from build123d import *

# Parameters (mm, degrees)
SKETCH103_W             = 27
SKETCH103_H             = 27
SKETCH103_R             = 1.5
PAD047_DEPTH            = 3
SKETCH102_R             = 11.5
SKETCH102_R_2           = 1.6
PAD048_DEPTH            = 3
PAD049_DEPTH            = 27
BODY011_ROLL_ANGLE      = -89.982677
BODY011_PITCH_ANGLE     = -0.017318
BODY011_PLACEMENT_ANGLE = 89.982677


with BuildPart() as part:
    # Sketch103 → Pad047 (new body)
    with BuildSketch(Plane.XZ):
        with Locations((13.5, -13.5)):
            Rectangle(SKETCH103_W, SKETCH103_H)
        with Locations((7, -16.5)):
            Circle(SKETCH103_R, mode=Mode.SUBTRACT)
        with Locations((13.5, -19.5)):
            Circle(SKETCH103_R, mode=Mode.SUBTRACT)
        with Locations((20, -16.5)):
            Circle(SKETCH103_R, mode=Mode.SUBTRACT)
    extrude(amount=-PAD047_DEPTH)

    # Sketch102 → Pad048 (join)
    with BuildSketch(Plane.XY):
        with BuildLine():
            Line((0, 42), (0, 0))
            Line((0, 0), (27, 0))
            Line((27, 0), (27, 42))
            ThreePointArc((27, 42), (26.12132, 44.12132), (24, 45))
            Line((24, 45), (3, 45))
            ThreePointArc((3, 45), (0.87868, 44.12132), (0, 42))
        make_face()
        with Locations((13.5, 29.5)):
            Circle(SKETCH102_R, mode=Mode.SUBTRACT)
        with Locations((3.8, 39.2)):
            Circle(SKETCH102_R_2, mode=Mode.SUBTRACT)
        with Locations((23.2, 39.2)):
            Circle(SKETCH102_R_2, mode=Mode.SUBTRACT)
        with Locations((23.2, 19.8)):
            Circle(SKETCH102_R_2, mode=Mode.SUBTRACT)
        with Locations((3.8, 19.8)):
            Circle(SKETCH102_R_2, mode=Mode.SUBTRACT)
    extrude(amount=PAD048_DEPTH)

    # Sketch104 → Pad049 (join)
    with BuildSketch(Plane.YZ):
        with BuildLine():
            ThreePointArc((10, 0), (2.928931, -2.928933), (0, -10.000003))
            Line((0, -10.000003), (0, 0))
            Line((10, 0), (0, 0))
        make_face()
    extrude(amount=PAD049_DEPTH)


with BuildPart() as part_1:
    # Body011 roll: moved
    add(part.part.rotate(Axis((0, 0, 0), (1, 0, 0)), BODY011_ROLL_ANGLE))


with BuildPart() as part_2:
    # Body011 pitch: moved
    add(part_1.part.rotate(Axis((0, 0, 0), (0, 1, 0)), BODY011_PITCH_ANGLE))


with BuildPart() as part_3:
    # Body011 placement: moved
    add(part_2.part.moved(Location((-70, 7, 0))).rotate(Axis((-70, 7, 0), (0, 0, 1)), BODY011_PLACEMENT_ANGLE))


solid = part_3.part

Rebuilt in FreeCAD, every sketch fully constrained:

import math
import FreeCAD as App
import Part
import Sketcher

doc = App.newDocument("Part")
params = doc.addObject("Spreadsheet::Sheet", "Params")
for row, (alias, value) in enumerate([
    ("sketch1_diameter", "3 mm"),
    ("sketch1_width", "27 mm"),
    ("pad1_length", "3 mm"),
    ("sketch2_diameter", "23 mm"),
    ("sketch2_radius", "3.000001 mm"),
    ("sketch2_diameter2", "3.2 mm"),
    ("sketch2_width", "27 mm"),
    ("sketch2_height", "42 mm"),
    ("pad2_length", "3 mm"),
    ("sketch3_radius", "9.999999 mm"),
    ("pad3_length", "27 mm"),
], start=1):
    params.set(f"A{row}", alias)
    params.set(f"B{row}", "=" + value)
    params.setAlias(f"B{row}", alias)

body = doc.addObject("PartDesign::Body", "Body")

sketch1 = body.newObject("Sketcher::SketchObject", "Sketch")
sketch1.AttachmentSupport = (doc.getObject("XZ_Plane"), [""])
sketch1.MapMode = "FlatFace"
sketch1.addGeometry([
    Part.LineSegment(App.Vector(0, 0, 0), App.Vector(0, -27, 0)),
    Part.LineSegment(App.Vector(0, -27, 0), App.Vector(27, -27, 0)),
    Part.LineSegment(App.Vector(27, -27, 0), App.Vector(27, 0, 0)),
    Part.LineSegment(App.Vector(27, 0, 0), App.Vector(0, 0, 0)),
    Part.Circle(App.Vector(13.5, -19.5, 0), App.Vector(0, 0, 1), 1.5),
    Part.Circle(App.Vector(7, -16.5, 0), App.Vector(0, 0, 1), 1.5),
    Part.Circle(App.Vector(20, -16.5, 0), App.Vector(0, 0, 1), 1.5),
], False)
sketch1.addConstraint([
    Sketcher.Constraint("Coincident", 0, 2, 1, 1),
    Sketcher.Constraint("Coincident", 1, 2, 2, 1),
    Sketcher.Constraint("Coincident", 2, 2, 3, 1),
    Sketcher.Constraint("Coincident", 3, 2, 0, 1),
    Sketcher.Constraint("Vertical", 0),
    Sketcher.Constraint("Horizontal", 1),
    Sketcher.Constraint("Vertical", 2),
    Sketcher.Constraint("Horizontal", 3),
    Sketcher.Constraint("Coincident", 3, 2, -1, 1),
    Sketcher.Constraint("Equal", 4, 5),
    Sketcher.Constraint("Equal", 5, 6),
    Sketcher.Constraint("Horizontal", 5, 3, 6, 3),
    Sketcher.Constraint("Equal", 3, 0),
    Sketcher.Constraint("Diameter", 4, 3.0),
    Sketcher.Constraint("DistanceX", 1, 1, 1, 2, 27.0),
    Sketcher.Constraint("DistanceX", -1, 1, 5, 3, 7.0),
    Sketcher.Constraint("DistanceX", -1, 1, 6, 3, 20.0),
    Sketcher.Constraint("DistanceY", 4, 3, 5, 3, 3.0),
    Sketcher.Constraint("DistanceX", -1, 1, 4, 3, 13.5),
    Sketcher.Constraint("DistanceY", 4, 3, -1, 1, 19.5),
])
sketch1.setExpression("Constraints[13]", "Params.sketch1_diameter")
sketch1.setExpression("Constraints[14]", "Params.sketch1_width")
pad1 = body.newObject("PartDesign::Pad", "Pad")
pad1.Profile = sketch1
pad1.setExpression("Length", "Params.pad1_length")
pad1.Reversed = True

sketch2 = body.newObject("Sketcher::SketchObject", "Sketch001")
sketch2.AttachmentSupport = (doc.getObject("XY_Plane"), [""])
sketch2.MapMode = "FlatFace"
sketch2.addGeometry([
    Part.LineSegment(App.Vector(0, 42, 0), App.Vector(0, 0, 0)),
    Part.LineSegment(App.Vector(0, 0, 0), App.Vector(27, 0, 0)),
    Part.LineSegment(App.Vector(27, 0, 0), App.Vector(27, 42, 0)),
    Part.ArcOfCircle(Part.Circle(App.Vector(24, 42, 0), App.Vector(0, 0, 1), 3), math.radians(0), math.radians(90)),
    Part.LineSegment(App.Vector(24, 45, 0), App.Vector(3, 45, 0)),
    Part.ArcOfCircle(Part.Circle(App.Vector(3, 42, 0), App.Vector(0, 0, 1), 3), math.radians(90), math.radians(180)),
    Part.Circle(App.Vector(3.8, 19.8, 0), App.Vector(0, 0, 1), 1.6),
    Part.Circle(App.Vector(23.2, 19.8, 0), App.Vector(0, 0, 1), 1.6),
    Part.Circle(App.Vector(3.8, 39.2, 0), App.Vector(0, 0, 1), 1.6),
    Part.Circle(App.Vector(13.5, 29.5, 0), App.Vector(0, 0, 1), 11.5),
    Part.Circle(App.Vector(23.2, 39.2, 0), App.Vector(0, 0, 1), 1.6),
], False)
sketch2.addConstraint([
    Sketcher.Constraint("Coincident", 0, 2, 1, 1),
    Sketcher.Constraint("Coincident", 1, 2, 2, 1),
    Sketcher.Constraint("Tangent", 2, 2, 3, 1),
    Sketcher.Constraint("Tangent", 3, 2, 4, 1),
    Sketcher.Constraint("Tangent", 4, 2, 5, 1),
    Sketcher.Constraint("Tangent", 5, 2, 0, 1),
    Sketcher.Constraint("Vertical", 0),
    Sketcher.Constraint("Horizontal", 1),
    Sketcher.Constraint("Vertical", 2),
    Sketcher.Constraint("Horizontal", 4),
    Sketcher.Constraint("Coincident", 0, 2, -1, 1),
    Sketcher.Constraint("Equal", 3, 5),
    Sketcher.Constraint("Equal", 6, 7),
    Sketcher.Constraint("Equal", 7, 8),
    Sketcher.Constraint("Equal", 8, 10),
    Sketcher.Constraint("Horizontal", 6, 3, 7, 3),
    Sketcher.Constraint("Horizontal", 8, 3, 10, 3),
    Sketcher.Constraint("Vertical", 6, 3, 8, 3),
    Sketcher.Constraint("Vertical", 7, 3, 10, 3),
    Sketcher.Constraint("Diameter", 9, 23.0),
    Sketcher.Constraint("Radius", 3, 3.000001),
    Sketcher.Constraint("Diameter", 6, 3.2),
    Sketcher.Constraint("DistanceX", 1, 1, 1, 2, 27.0),
    Sketcher.Constraint("DistanceY", 0, 2, 0, 1, 42.0),
    Sketcher.Constraint("DistanceX", -1, 1, 6, 3, 3.8),
    Sketcher.Constraint("DistanceY", -1, 1, 6, 3, 19.8),
    Sketcher.Constraint("DistanceX", -1, 1, 7, 3, 23.2),
    Sketcher.Constraint("DistanceY", -1, 1, 8, 3, 39.2),
    Sketcher.Constraint("DistanceX", -1, 1, 9, 3, 13.5),
    Sketcher.Constraint("DistanceY", -1, 1, 9, 3, 29.5),
])
sketch2.setExpression("Constraints[19]", "Params.sketch2_diameter")
sketch2.setExpression("Constraints[20]", "Params.sketch2_radius")
sketch2.setExpression("Constraints[21]", "Params.sketch2_diameter2")
sketch2.setExpression("Constraints[22]", "Params.sketch2_width")
sketch2.setExpression("Constraints[23]", "Params.sketch2_height")
pad2 = body.newObject("PartDesign::Pad", "Pad001")
pad2.Profile = sketch2
pad2.setExpression("Length", "Params.pad2_length")

sketch3 = body.newObject("Sketcher::SketchObject", "Sketch002")
sketch3.AttachmentSupport = (doc.getObject("YZ_Plane"), [""])
sketch3.MapMode = "FlatFace"
sketch3.addGeometry([
    Part.ArcOfCircle(Part.Circle(App.Vector(10, -10, 0), App.Vector(0, 0, 1), 10), math.radians(90), math.radians(180)),
    Part.LineSegment(App.Vector(10, 0, 0), App.Vector(0, 0, 0)),
    Part.LineSegment(App.Vector(0, 0, 0), App.Vector(0, -10, 0)),
], False)
sketch3.addConstraint([
    Sketcher.Constraint("Tangent", 0, 1, 1, 1),
    Sketcher.Constraint("Coincident", 1, 2, 2, 1),
    Sketcher.Constraint("Tangent", 2, 2, 0, 2),
    Sketcher.Constraint("Horizontal", 1),
    Sketcher.Constraint("Vertical", 2),
    Sketcher.Constraint("Coincident", 1, 2, -1, 1),
    Sketcher.Constraint("Radius", 0, 9.999999),
])
sketch3.setExpression("Constraints[6]", "Params.sketch3_radius")
pad3 = body.newObject("PartDesign::Pad", "Pad002")
pad3.Profile = sketch3
pad3.setExpression("Length", "Params.pad3_length")
body2 = doc.addObject("PartDesign::Body", "Body001")
doc.recompute()

body.Placement = App.Placement(App.Vector(0, 0, 0), App.Rotation(App.Vector(1, 0, 0), 270.017323))
boolean = body2.newObject("PartDesign::Boolean", "Boolean")
boolean.Type = "Fuse"
boolean.addObjects([body])
body3 = doc.addObject("PartDesign::Body", "Body002")
doc.recompute()

body2.Placement = App.Placement(App.Vector(0, 0, 0), App.Rotation(App.Vector(0, 1, 0), 359.982682))
boolean2 = body3.newObject("PartDesign::Boolean", "Boolean001")
boolean2.Type = "Fuse"
boolean2.addObjects([body2])
body4 = doc.addObject("PartDesign::Body", "Body003")
doc.recompute()

body3.Placement = App.Placement(App.Vector(-70, 7, 0), App.Rotation(App.Vector(0, 0, 1), 89.982677))
boolean3 = body4.newObject("PartDesign::Boolean", "Boolean002")
boolean3.Type = "Fuse"
boolean3.addObjects([body3])

doc.recompute()
